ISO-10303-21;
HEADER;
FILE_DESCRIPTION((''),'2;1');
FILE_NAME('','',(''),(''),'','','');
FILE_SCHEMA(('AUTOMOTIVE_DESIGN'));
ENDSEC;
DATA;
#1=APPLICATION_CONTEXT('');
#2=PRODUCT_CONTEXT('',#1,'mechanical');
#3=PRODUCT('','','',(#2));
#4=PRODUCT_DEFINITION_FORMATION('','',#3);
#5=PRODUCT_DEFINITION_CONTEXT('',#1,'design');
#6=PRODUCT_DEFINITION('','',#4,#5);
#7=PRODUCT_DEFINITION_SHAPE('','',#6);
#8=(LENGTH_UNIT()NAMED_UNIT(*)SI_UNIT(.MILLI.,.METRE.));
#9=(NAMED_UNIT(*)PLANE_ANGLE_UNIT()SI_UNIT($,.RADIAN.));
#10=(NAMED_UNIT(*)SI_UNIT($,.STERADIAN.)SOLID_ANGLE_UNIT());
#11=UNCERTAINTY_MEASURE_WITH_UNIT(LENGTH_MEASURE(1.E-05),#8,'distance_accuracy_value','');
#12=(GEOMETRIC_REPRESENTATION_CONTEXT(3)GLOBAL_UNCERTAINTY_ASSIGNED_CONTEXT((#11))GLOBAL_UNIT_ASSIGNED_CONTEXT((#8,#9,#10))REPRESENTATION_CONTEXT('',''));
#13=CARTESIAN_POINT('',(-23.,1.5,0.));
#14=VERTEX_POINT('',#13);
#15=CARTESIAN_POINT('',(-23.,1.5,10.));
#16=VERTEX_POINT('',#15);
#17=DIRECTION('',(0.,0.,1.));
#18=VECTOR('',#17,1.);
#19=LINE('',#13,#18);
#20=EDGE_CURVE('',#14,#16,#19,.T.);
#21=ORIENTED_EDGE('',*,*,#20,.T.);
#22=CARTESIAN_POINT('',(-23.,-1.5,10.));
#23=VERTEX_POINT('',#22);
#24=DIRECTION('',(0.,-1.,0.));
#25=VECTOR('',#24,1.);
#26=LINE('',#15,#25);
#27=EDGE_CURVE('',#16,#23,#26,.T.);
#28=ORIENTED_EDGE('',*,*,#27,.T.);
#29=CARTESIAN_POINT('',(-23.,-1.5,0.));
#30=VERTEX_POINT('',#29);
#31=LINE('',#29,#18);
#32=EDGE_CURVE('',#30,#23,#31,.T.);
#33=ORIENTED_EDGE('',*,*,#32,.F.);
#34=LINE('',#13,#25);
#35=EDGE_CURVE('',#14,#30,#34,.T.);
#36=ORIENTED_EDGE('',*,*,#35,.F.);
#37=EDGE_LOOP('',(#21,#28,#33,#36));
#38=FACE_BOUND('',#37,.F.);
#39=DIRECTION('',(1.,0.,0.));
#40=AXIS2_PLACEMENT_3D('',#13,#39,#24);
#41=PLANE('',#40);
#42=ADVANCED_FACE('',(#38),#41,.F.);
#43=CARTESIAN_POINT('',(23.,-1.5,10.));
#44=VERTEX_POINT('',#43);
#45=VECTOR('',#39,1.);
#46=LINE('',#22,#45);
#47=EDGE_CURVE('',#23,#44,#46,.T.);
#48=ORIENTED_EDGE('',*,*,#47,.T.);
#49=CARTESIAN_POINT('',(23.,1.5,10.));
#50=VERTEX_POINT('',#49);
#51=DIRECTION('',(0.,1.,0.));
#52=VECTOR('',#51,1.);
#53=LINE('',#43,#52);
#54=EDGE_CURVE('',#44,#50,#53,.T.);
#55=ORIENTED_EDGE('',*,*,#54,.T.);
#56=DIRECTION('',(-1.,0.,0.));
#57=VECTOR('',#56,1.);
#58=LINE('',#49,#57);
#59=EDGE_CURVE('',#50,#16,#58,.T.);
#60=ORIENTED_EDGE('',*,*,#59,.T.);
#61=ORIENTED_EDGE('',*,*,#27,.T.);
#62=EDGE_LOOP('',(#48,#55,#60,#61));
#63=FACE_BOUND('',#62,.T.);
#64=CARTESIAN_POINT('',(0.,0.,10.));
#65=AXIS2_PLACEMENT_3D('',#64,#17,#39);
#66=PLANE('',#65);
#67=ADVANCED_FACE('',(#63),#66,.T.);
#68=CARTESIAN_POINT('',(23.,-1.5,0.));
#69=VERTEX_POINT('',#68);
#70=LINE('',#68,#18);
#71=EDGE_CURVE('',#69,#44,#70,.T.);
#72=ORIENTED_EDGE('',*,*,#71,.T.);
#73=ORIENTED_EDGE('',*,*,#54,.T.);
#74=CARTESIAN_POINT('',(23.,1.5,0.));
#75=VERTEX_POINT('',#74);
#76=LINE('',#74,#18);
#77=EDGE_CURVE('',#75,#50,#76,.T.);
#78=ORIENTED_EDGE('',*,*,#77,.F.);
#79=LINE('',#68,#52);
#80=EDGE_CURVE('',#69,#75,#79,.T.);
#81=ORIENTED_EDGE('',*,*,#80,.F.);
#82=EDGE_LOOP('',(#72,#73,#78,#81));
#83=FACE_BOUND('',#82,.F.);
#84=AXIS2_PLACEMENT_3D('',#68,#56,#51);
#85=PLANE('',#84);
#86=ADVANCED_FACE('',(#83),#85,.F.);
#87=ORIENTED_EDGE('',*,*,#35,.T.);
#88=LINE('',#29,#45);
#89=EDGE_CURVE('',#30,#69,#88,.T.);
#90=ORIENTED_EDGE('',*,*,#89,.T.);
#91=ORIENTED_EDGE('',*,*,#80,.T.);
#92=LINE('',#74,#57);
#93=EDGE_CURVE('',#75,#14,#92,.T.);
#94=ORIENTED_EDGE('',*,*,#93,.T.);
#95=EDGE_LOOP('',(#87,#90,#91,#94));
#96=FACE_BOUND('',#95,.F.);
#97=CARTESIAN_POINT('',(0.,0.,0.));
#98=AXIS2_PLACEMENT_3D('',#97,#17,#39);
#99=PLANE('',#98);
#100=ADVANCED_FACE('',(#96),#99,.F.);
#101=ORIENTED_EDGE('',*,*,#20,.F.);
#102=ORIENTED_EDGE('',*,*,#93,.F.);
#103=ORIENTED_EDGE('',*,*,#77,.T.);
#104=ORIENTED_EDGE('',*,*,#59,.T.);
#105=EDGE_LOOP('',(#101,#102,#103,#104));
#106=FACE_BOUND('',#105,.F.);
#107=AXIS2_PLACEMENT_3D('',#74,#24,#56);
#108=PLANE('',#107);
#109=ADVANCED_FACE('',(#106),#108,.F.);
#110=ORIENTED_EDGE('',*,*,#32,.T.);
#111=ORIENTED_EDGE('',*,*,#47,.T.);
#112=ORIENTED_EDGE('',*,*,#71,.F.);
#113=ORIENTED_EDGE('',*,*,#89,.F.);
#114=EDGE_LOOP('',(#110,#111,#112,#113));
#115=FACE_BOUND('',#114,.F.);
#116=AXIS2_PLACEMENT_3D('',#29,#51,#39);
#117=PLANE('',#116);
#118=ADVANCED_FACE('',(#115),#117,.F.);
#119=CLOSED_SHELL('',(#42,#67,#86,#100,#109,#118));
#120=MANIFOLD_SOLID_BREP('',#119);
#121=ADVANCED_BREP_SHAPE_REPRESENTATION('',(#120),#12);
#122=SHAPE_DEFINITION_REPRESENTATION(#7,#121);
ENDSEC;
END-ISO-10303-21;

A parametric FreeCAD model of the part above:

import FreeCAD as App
import Part
import Sketcher

V = App.Vector

doc = App.newDocument("Part")
body = doc.addObject("PartDesign::Body", "Body")

# Sketch on XY plane
sketch1 = body.newObject("Sketcher::SketchObject", "Sketch")
sketch1.AttachmentSupport = (doc.getObject("XY_Plane"), [""])
sketch1.MapMode = "FlatFace"
sketch1.addGeometry(Part.LineSegment(V(-23, 1.5, 0), V(-23, -1.5, 0)), False)
sketch1.addGeometry(Part.LineSegment(V(-23, -1.5, 0), V(23, -1.5, 0)), False)
sketch1.addGeometry(Part.LineSegment(V(23, -1.5, 0), V(23, 1.5, 0)), False)
sketch1.addGeometry(Part.LineSegment(V(23, 1.5, 0), V(-23, 1.5, 0)), False)
sketch1.addConstraint(Sketcher.Constraint("Coincident", 0, 2, 1, 1))
sketch1.addConstraint(Sketcher.Constraint("Coincident", 1, 2, 2, 1))
sketch1.addConstraint(Sketcher.Constraint("Coincident", 2, 2, 3, 1))
sketch1.addConstraint(Sketcher.Constraint("Coincident", 3, 2, 0, 1))
sketch1.addConstraint(Sketcher.Constraint("Vertical", 0))
sketch1.addConstraint(Sketcher.Constraint("Horizontal", 1))
sketch1.addConstraint(Sketcher.Constraint("Vertical", 2))
sketch1.addConstraint(Sketcher.Constraint("Horizontal", 3))
sketch1.addConstraint(Sketcher.Constraint("Symmetric", 0, 2, 2, 2, -1, 1))
sketch1.addConstraint(Sketcher.Constraint("DistanceX", 1, 1, 1, 2, 46.0))
sketch1.addConstraint(Sketcher.Constraint("DistanceY", 0, 2, 0, 1, 3.0))
pad1 = body.newObject("PartDesign::Pad", "Pad")
pad1.Profile = sketch1
pad1.Length = 10

doc.recompute()
